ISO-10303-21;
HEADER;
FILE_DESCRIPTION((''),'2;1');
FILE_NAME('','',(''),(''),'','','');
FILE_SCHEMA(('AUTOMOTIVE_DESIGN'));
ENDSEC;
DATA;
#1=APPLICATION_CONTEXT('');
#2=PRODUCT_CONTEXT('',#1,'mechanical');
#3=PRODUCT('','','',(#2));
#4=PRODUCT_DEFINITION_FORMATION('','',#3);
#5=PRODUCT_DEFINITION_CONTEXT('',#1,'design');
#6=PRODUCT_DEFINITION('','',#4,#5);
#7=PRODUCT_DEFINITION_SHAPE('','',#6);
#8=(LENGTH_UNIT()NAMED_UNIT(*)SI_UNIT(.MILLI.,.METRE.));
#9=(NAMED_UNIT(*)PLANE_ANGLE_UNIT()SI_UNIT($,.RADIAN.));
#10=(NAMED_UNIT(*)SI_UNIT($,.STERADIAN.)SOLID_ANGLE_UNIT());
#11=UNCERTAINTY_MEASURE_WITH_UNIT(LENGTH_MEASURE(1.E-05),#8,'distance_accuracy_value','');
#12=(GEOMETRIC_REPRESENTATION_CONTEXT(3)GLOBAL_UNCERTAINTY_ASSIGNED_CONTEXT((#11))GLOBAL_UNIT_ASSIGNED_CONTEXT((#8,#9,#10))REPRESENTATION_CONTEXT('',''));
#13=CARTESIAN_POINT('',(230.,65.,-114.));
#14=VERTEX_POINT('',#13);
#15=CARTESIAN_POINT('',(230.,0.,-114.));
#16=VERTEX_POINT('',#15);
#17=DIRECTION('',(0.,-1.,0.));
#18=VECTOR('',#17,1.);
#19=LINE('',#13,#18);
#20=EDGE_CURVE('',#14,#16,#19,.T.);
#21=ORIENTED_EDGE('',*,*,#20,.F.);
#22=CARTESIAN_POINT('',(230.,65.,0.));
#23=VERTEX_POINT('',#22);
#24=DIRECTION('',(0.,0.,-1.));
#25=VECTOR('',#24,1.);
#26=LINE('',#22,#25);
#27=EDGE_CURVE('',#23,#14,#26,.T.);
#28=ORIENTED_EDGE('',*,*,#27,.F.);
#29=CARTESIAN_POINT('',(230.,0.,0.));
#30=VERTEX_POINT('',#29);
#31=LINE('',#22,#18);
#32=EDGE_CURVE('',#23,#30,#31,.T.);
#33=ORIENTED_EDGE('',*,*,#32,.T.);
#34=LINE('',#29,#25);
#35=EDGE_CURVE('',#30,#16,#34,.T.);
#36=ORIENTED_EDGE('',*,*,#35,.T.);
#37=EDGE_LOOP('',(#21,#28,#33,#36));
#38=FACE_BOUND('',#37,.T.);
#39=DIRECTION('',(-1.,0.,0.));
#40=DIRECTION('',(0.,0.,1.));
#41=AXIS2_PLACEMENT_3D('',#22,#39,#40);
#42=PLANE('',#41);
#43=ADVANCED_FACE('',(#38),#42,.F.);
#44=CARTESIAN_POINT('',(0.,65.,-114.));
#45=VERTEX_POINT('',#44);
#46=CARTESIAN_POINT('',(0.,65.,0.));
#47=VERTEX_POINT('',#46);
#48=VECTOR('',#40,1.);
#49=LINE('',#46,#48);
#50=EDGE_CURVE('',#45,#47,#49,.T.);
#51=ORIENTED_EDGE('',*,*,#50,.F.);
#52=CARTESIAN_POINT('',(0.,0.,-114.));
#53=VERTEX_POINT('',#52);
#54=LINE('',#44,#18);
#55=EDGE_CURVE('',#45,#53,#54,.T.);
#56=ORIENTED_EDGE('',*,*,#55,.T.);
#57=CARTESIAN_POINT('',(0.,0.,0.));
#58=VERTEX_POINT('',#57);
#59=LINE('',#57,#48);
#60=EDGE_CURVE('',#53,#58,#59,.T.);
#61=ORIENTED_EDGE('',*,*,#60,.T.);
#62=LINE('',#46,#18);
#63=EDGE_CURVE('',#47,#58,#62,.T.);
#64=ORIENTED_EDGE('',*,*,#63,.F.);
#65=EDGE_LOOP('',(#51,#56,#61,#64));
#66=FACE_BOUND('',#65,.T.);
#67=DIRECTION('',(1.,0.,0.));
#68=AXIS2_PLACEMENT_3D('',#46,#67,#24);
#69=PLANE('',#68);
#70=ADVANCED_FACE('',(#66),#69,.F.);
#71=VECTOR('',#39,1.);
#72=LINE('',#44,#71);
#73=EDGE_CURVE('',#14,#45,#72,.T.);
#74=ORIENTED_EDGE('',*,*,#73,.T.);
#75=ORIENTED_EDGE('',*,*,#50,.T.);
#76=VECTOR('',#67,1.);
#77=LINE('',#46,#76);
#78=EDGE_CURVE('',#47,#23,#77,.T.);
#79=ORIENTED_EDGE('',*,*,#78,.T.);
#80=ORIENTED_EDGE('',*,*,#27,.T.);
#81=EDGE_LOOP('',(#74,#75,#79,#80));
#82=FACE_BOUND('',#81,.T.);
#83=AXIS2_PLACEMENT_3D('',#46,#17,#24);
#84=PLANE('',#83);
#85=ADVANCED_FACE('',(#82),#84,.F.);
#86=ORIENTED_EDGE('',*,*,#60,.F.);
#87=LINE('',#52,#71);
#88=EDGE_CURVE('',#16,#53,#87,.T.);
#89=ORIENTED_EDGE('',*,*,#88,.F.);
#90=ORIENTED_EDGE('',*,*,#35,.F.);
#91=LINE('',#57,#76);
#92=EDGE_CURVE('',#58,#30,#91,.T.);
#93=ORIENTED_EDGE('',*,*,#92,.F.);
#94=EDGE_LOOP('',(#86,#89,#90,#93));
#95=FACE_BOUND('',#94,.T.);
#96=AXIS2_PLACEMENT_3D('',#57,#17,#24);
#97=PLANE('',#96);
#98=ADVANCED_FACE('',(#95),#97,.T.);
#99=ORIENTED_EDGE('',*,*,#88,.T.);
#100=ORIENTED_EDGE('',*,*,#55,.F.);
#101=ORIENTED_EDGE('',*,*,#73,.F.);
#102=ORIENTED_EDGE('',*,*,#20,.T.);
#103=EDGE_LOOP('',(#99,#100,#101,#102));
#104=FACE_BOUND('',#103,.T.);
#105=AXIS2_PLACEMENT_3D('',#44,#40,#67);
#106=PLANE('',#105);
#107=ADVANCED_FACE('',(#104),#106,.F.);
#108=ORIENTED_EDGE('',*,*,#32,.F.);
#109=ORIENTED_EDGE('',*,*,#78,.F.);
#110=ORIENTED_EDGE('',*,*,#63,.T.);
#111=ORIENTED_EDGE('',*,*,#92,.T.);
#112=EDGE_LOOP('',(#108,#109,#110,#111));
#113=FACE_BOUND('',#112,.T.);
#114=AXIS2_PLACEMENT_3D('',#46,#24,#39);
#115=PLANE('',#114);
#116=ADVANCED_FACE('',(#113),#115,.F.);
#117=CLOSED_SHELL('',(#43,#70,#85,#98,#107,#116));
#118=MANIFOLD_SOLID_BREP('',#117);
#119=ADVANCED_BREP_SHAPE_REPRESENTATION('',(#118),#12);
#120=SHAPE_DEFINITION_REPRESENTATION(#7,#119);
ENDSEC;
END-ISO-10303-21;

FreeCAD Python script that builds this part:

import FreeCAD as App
import Part
import Sketcher
Q = App.Units.Quantity


def add_polygon(sketch, points):
    """Adds a closed chain of lines whose ends are joined by coincident constraints."""
    first, n = sketch.GeometryCount, len(points)
    for a, b in zip(points, points[1:] + points[:1]):
        sketch.addGeometry(Part.LineSegment(App.Vector(*a, 0), App.Vector(*b, 0)), False)
    for i in range(n):
        sketch.addConstraint(Sketcher.Constraint("Coincident", first + i, 2, first + (i + 1) % n, 1))

doc = App.newDocument("Part")
params = doc.addObject("Spreadsheet::Sheet", "Params")
for row, (alias, value) in enumerate([
    ("sketch1_width", "230 mm"),
    ("sketch1_height", "114 mm"),
    ("pad1_length", "65 mm"),
], start=1):
    params.set(f"A{row}", alias)
    params.set(f"B{row}", "=" + value)
    params.setAlias(f"B{row}", alias)

body = doc.addObject("PartDesign::Body", "Body")

# Sketch on XZ plane
sketch1 = body.newObject("Sketcher::SketchObject", "Sketch")
sketch1.AttachmentSupport = (doc.getObject("XZ_Plane"), [""])
sketch1.MapMode = "FlatFace"
add_polygon(sketch1, [(0, -114), (0, 0), (230, 0), (230, -114)])  # lines 0-3
sketch1.addConstraint(Sketcher.Constraint("Vertical", 0))
sketch1.addConstraint(Sketcher.Constraint("Horizontal", 1))
sketch1.addConstraint(Sketcher.Constraint("Vertical", 2))
sketch1.addConstraint(Sketcher.Constraint("Horizontal", 3))
sketch1.addConstraint(Sketcher.Constraint("Coincident", 0, 2, -1, 1))
sketch1.addConstraint(Sketcher.Constraint("DistanceX", 1, 1, 1, 2, Q("230 mm")))
sketch1.addConstraint(Sketcher.Constraint("DistanceY", 0, 1, 0, 2, Q("114 mm")))
sketch1.setExpression("Constraints[9]", "Params.sketch1_width")
sketch1.setExpression("Constraints[10]", "Params.sketch1_height")
pad1 = body.newObject("PartDesign::Pad", "Pad")
pad1.Profile = sketch1
pad1.setExpression("Length", "Params.pad1_length")
pad1.Reversed = True

doc.recompute()
